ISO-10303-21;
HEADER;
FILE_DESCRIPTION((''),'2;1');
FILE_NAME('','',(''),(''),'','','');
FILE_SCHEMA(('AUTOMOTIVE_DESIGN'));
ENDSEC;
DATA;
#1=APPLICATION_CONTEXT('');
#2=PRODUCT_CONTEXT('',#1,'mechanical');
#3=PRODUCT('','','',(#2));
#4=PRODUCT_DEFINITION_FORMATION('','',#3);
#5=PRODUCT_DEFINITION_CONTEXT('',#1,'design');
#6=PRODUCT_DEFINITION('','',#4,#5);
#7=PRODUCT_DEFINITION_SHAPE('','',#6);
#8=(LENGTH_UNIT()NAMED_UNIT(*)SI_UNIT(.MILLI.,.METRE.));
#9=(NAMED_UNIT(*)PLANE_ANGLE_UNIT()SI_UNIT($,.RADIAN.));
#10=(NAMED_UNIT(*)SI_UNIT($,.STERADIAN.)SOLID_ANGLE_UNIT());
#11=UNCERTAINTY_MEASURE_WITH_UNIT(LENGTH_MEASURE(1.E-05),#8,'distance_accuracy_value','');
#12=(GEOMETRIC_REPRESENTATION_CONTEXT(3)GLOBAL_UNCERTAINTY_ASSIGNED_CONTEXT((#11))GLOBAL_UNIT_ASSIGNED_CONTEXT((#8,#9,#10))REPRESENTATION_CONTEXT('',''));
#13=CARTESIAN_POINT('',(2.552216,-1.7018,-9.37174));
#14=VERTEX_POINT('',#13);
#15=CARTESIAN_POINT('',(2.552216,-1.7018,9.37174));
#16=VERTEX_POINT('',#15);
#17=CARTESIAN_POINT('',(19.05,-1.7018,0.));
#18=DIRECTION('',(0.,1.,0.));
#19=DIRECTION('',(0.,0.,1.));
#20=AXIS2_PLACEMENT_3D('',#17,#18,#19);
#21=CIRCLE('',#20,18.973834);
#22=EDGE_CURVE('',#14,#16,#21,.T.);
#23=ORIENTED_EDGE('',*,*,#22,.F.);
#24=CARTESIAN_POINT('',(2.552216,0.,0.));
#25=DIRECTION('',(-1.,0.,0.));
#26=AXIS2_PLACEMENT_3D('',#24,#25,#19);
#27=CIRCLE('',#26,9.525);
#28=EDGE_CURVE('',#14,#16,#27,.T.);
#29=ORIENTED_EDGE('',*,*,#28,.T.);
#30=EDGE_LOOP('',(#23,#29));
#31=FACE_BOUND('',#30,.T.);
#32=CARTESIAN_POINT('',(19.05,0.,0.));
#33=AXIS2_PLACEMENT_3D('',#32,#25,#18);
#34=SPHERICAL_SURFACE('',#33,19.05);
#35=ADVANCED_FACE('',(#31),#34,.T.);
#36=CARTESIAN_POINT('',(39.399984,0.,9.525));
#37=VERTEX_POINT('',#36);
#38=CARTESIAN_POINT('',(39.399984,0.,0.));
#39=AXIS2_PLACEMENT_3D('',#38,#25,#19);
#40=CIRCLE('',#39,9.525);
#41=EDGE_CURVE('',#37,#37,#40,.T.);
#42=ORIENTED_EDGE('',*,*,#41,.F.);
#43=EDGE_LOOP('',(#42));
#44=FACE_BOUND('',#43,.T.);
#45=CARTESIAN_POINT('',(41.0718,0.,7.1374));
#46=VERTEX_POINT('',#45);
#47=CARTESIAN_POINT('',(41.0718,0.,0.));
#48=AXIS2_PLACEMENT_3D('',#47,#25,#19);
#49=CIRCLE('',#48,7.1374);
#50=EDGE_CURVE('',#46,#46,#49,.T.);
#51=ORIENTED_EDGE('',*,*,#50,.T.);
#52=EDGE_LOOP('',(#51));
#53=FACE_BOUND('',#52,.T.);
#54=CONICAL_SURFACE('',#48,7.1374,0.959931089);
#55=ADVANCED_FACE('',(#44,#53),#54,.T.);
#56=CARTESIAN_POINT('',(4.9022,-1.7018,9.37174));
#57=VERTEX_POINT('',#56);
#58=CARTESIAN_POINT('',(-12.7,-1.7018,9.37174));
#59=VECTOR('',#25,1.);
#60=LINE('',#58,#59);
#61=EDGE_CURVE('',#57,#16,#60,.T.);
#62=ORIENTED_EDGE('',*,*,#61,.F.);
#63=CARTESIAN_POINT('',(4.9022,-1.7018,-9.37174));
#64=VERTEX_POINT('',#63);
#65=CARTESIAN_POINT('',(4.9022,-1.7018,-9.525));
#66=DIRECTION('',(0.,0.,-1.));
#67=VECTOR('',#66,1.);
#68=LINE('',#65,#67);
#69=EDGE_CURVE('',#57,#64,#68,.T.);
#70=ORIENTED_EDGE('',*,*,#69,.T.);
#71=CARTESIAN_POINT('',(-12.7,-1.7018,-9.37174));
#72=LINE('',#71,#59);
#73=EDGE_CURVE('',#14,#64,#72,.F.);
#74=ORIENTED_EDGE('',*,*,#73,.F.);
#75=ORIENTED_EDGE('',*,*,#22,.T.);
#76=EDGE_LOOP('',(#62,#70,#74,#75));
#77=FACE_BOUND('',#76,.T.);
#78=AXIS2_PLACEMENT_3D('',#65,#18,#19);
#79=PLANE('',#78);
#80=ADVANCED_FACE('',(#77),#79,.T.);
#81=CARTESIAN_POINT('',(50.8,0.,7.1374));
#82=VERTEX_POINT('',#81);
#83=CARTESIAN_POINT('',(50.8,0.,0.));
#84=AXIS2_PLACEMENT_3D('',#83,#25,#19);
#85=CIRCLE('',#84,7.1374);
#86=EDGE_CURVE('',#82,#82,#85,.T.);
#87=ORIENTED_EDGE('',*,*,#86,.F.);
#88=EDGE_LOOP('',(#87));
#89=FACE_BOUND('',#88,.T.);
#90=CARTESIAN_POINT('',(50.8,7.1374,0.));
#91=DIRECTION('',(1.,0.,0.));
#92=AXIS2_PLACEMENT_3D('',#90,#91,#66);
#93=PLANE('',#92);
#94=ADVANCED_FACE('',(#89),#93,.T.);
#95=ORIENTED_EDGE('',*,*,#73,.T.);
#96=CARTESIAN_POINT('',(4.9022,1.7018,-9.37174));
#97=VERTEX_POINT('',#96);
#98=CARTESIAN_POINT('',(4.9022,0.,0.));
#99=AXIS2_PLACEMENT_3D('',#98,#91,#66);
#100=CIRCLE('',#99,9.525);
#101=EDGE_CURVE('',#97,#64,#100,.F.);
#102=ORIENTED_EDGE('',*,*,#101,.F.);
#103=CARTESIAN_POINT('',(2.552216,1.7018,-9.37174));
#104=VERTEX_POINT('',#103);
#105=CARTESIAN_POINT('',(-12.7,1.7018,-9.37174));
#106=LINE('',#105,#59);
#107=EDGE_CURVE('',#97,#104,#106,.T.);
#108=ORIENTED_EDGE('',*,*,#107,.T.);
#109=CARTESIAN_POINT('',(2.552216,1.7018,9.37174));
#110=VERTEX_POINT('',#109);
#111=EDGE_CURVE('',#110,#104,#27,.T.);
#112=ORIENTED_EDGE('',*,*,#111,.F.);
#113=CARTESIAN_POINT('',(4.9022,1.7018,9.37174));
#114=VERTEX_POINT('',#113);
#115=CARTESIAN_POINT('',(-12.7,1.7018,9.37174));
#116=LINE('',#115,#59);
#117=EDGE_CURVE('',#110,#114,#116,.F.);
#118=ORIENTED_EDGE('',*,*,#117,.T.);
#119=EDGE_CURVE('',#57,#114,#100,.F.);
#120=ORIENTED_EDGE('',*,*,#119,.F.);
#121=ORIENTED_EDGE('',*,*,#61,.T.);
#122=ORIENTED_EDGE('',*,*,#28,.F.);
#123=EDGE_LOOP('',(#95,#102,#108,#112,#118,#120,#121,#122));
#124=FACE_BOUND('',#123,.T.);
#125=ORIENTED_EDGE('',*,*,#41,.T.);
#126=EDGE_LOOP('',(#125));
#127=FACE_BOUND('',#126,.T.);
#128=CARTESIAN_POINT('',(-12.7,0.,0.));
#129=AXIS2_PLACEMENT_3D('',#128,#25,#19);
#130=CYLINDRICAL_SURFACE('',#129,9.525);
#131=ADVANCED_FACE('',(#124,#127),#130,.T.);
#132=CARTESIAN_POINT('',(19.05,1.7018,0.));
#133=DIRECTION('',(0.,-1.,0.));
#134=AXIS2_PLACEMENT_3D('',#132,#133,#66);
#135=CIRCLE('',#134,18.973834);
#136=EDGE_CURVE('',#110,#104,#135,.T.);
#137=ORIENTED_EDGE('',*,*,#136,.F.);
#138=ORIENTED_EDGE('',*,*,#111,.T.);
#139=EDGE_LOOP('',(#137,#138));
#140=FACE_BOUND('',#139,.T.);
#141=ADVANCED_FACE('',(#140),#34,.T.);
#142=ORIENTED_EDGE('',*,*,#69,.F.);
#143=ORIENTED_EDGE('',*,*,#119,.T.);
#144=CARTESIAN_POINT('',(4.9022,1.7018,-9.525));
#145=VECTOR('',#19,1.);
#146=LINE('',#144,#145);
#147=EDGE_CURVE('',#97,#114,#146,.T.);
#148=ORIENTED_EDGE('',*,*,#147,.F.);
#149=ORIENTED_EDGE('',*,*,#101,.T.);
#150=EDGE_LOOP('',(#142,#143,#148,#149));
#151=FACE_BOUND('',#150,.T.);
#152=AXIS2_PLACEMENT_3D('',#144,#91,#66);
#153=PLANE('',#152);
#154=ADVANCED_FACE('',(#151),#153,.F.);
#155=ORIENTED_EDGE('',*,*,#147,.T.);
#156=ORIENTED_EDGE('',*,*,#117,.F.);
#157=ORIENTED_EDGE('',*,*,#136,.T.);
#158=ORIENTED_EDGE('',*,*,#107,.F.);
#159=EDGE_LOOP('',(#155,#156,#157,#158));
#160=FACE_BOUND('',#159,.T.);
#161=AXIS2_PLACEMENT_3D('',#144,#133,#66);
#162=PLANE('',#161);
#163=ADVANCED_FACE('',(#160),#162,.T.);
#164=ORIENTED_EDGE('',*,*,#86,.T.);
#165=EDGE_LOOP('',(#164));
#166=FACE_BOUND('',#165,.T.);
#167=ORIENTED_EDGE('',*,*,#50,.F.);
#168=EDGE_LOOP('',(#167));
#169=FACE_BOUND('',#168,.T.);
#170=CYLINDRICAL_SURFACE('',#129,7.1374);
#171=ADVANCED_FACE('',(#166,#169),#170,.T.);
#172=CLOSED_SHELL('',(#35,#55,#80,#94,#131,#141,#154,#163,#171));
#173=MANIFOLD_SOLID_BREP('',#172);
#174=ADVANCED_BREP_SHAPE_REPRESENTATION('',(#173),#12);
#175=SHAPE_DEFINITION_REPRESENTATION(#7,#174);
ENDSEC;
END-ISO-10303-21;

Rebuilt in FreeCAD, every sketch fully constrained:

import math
import FreeCAD as App
import Part
import Sketcher
from FreeCAD import Vector
Q = App.Units.Quantity


def add_polygon(sketch, points):
    """Adds a closed chain of lines whose ends are joined by coincident constraints."""
    first, n = sketch.GeometryCount, len(points)
    for a, b in zip(points, points[1:] + points[:1]):
        sketch.addGeometry(Part.LineSegment(App.Vector(*a, 0), App.Vector(*b, 0)), False)
    for i in range(n):
        sketch.addConstraint(Sketcher.Constraint("Coincident", first + i, 2, first + (i + 1) % n, 1))

doc = App.newDocument("Part")
body = doc.addObject("PartDesign::Body", "Body")

# Sketch on XY plane
sketch1 = body.newObject("Sketcher::SketchObject", "Sketch")
sketch1.AttachmentSupport = (doc.getObject("XY_Plane"), [""])
sketch1.MapMode = "FlatFace"
sketch1.addGeometry([
    Part.LineSegment(Vector(50.8, 7.1, 0), Vector(41.1, 7.1, 0)),  # 0
    Part.LineSegment(Vector(41.1, 7.1, 0), Vector(39.4, 9.5, 0)),  # 1
    Part.LineSegment(Vector(39.4, 9.5, 0), Vector(2.6, 9.5, 0)),  # 2
    Part.ArcOfCircle(Part.Circle(Vector(19, 0, 0), Vector(0, 0, 1), 19), math.radians(150), math.radians(180)),  # 3
    Part.LineSegment(Vector(0, 0, 0), Vector(50.8, 0, 0)),  # 4
    Part.LineSegment(Vector(50.8, 0, 0), Vector(50.8, 7.1, 0)),  # 5
], False)
sketch1.addConstraint([
    Sketcher.Constraint("Coincident", 0, 2, 1, 1),
    Sketcher.Constraint("Coincident", 1, 2, 2, 1),
    Sketcher.Constraint("Coincident", 2, 2, 3, 1),
    Sketcher.Constraint("Coincident", 3, 2, 4, 1),
    Sketcher.Constraint("Coincident", 4, 2, 5, 1),
    Sketcher.Constraint("Coincident", 5, 2, 0, 1),
    Sketcher.Constraint("Horizontal", 0),
    Sketcher.Constraint("Horizontal", 2),
    Sketcher.Constraint("Horizontal", 4),
    Sketcher.Constraint("Vertical", 5),
    Sketcher.Constraint("Coincident", 3, 2, -1, 1),
    Sketcher.Constraint("PointOnObject", 3, 3, -1),
    Sketcher.Constraint("DistanceX", 4, 1, 4, 2, Q("2 in")),
    Sketcher.Constraint("Radius", 3, Q("0.75 in")),
    Sketcher.Constraint("Angle", 1, Q("125 deg")),
    Sketcher.Constraint("DistanceX", 0, 2, 0, 1, Q("0.383 in")),
    Sketcher.Constraint("DistanceY", 5, 1, 5, 2, Q("0.281 in")),
    Sketcher.Constraint("DistanceY", -1, 1, 1, 2, Q("0.375 in")),
])
revolution = body.newObject("PartDesign::Revolution", "Revolution")
revolution.Profile = sketch1
revolution.ReferenceAxis = (sketch1, ["H_Axis"])
revolution.Angle = 360

# Sketch on YZ plane
sketch2 = body.newObject("Sketcher::SketchObject", "Sketch001")
sketch2.AttachmentSupport = (doc.getObject("YZ_Plane"), [""])
sketch2.MapMode = "FlatFace"
add_polygon(sketch2, [(1.7, 9.5), (-1.7, 9.5), (-1.7, -9.5), (1.7, -9.5)])  # lines 0-3
sketch2.addConstraint([
    Sketcher.Constraint("Horizontal", 0),
    Sketcher.Constraint("Vertical", 1),
    Sketcher.Constraint("Horizontal", 2),
    Sketcher.Constraint("Vertical", 3),
    Sketcher.Constraint("Symmetric", 0, 2, 2, 2, -1, 1),
    Sketcher.Constraint("DistanceY", 1, 2, 1, 1, Q("0.75 in")),
    Sketcher.Constraint("DistanceX", 0, 2, 0, 1, Q("0.134 in")),
])
pocket1 = body.newObject("PartDesign::Pocket", "Pocket")
pocket1.Profile = sketch2
pocket1.Length = Q("0.193 in")
pocket1.Reversed = True

doc.recompute()
